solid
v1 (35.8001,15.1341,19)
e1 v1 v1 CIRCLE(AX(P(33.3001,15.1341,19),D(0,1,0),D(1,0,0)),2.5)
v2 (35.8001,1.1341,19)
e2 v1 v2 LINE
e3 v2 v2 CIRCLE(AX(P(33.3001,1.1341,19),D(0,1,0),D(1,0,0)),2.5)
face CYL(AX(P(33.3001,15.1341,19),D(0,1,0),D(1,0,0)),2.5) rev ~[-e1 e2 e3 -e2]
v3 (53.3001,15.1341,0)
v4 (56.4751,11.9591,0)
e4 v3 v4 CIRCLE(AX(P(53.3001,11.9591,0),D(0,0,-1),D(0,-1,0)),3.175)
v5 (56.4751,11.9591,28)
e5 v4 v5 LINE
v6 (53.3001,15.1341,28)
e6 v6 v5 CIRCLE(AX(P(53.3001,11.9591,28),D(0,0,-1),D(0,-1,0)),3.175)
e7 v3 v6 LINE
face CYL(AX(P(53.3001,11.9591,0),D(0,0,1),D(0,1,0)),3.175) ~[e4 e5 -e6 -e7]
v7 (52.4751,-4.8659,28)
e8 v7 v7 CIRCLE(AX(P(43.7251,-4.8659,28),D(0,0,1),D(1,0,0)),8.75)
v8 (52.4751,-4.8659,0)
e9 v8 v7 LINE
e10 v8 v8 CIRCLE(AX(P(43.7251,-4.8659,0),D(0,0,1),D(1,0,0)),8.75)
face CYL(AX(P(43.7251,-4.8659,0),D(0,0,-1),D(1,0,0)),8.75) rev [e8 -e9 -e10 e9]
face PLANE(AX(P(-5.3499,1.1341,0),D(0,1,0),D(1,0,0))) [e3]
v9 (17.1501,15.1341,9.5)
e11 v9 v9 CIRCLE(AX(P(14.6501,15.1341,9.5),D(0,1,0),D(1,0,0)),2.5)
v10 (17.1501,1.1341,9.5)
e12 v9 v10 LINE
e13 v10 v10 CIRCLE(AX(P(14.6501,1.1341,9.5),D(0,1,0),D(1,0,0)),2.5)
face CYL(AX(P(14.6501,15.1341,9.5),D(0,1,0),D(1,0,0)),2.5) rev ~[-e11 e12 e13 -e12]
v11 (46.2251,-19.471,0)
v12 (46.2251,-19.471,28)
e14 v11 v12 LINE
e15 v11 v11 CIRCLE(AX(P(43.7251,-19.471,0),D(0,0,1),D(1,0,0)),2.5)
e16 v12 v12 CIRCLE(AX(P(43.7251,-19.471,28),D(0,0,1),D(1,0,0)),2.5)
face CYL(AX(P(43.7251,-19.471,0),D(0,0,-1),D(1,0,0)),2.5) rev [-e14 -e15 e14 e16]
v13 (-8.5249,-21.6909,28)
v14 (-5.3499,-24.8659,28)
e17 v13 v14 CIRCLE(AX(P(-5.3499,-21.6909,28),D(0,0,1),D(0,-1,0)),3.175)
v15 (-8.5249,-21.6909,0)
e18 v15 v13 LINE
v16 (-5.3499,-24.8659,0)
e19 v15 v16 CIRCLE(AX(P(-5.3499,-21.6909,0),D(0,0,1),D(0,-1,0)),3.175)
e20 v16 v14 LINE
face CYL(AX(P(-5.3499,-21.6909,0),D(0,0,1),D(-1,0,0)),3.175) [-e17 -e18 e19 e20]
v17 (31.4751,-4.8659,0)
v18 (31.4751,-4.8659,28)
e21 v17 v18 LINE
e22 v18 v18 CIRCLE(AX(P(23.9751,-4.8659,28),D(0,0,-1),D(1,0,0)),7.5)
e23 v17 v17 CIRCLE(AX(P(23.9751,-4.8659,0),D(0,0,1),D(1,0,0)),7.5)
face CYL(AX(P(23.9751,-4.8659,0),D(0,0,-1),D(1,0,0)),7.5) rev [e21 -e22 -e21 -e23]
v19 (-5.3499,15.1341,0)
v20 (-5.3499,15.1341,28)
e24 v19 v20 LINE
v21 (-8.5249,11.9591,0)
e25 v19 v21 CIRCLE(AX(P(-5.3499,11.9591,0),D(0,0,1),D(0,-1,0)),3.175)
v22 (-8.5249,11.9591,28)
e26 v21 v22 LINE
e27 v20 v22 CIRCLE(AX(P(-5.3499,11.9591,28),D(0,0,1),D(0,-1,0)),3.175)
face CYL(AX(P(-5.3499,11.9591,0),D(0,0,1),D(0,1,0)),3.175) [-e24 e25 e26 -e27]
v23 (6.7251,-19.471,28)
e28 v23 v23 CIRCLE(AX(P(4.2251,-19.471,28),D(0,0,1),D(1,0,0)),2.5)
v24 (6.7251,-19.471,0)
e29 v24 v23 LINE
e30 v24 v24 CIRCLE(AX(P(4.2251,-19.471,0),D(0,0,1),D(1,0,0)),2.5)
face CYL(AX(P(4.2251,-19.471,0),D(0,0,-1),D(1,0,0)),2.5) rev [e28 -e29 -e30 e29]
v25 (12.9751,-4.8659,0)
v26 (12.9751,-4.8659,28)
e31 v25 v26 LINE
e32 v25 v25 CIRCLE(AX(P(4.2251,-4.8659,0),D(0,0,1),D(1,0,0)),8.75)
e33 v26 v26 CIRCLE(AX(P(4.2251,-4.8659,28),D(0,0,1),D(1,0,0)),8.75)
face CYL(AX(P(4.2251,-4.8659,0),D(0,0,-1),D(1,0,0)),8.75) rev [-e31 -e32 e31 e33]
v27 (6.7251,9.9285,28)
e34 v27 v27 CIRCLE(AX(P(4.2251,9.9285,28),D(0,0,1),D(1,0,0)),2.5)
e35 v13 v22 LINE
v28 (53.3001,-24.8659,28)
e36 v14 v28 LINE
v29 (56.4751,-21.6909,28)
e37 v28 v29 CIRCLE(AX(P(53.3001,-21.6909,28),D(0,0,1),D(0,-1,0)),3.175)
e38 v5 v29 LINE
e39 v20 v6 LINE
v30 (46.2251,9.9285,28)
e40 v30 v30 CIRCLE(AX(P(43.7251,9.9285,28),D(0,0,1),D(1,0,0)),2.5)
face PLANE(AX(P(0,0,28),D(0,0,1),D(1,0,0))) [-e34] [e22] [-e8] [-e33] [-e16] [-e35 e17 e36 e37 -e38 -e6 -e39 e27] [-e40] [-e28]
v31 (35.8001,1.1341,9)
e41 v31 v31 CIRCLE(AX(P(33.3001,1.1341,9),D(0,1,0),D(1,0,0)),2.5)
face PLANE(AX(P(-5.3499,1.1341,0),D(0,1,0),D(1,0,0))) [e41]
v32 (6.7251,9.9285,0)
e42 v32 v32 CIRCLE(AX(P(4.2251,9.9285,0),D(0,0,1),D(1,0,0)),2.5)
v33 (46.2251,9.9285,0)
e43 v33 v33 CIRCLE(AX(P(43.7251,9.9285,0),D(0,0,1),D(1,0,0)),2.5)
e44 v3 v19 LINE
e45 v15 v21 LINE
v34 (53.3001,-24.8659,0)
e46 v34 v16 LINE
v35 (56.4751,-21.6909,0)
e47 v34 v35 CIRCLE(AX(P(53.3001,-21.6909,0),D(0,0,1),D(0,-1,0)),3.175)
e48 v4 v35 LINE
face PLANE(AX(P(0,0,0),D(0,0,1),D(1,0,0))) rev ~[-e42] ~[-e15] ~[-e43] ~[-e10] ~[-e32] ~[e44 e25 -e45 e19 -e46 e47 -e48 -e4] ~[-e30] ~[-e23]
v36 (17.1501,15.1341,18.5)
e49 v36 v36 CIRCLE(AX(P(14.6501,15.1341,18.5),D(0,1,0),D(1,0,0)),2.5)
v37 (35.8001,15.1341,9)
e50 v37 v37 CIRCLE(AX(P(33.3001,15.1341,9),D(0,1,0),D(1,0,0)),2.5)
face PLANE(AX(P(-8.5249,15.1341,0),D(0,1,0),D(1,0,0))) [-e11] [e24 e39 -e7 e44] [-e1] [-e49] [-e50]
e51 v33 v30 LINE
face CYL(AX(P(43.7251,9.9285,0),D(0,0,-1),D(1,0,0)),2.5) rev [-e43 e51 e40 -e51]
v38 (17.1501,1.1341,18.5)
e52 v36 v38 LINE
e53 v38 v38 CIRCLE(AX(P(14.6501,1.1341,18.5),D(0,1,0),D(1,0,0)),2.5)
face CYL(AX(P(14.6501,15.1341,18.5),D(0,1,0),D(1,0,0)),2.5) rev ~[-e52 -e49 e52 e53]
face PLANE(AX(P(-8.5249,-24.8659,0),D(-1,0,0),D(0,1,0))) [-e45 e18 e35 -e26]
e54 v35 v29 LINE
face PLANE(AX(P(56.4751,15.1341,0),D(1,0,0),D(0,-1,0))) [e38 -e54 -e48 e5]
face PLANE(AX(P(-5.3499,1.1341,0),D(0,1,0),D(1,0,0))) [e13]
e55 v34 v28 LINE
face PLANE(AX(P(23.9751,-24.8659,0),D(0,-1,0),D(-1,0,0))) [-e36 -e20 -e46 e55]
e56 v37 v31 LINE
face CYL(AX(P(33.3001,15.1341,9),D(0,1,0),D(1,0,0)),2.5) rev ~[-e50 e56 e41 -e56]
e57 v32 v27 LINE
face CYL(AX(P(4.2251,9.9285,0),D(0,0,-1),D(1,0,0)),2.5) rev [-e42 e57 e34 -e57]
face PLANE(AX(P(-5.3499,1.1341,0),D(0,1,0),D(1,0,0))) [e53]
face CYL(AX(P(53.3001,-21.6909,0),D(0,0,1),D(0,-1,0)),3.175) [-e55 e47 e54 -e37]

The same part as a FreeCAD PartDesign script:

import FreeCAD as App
import Part
import Sketcher

V = App.Vector
Q = App.Units.Quantity


def edges_at(feature, points):
    """Names of the edges that pass closest to the given points."""
    edges = feature.Shape.Edges
    near = lambda p: min(range(len(edges)), key=lambda i: edges[i].distToShape(Part.Vertex(*p))[0])
    return sorted({f"Edge{near(p) + 1}" for p in points})


def add_polygon(sketch, points):
    """Adds a closed chain of lines whose ends are joined by coincident constraints."""
    first, n = sketch.GeometryCount, len(points)
    for a, b in zip(points, points[1:] + points[:1]):
        sketch.addGeometry(Part.LineSegment(App.Vector(*a, 0), App.Vector(*b, 0)), False)
    for i in range(n):
        sketch.addConstraint(Sketcher.Constraint("Coincident", first + i, 2, first + (i + 1) % n, 1))

doc = App.newDocument("Part")
body = doc.addObject("PartDesign::Body", "Body")

sketch1 = doc.addObject("Sketcher::SketchObject", "Sketch")
body.addObject(sketch1)
sketch1.AttachmentSupport = (doc.XY_Plane, [""])
sketch1.MapMode = "FlatFace"
add_polygon(sketch1, [(-8.5249, 15.1341), (-8.5249, -24.8659), (56.4751, -24.8659), (56.4751, 15.1341)])
sketch1.addGeometry(Part.Circle(V(23.9751, -4.8659, 0), V(0, 0, 1), 7.5), False)
sketch1.addGeometry(Part.Circle(V(4.2251, -19.471, 0), V(0, 0, 1), 2.5), False)
sketch1.addGeometry(Part.Circle(V(4.2251, -4.8659, 0), V(0, 0, 1), 8.75), False)
sketch1.addGeometry(Part.Circle(V(4.2251, 9.9285, 0), V(0, 0, 1), 2.5), False)
sketch1.addGeometry(Part.Circle(V(43.7251, -4.8659, 0), V(0, 0, 1), 8.75), False)
sketch1.addGeometry(Part.Circle(V(43.7251, 9.9285, 0), V(0, 0, 1), 2.5), False)
sketch1.addGeometry(Part.Circle(V(43.7251, -19.471, 0), V(0, 0, 1), 2.5), False)
sketch1.addConstraint([
    Sketcher.Constraint("Vertical", 0),
    Sketcher.Constraint("Horizontal", 1),
    Sketcher.Constraint("Vertical", 2),
    Sketcher.Constraint("Horizontal", 3),
    Sketcher.Constraint("Equal", 5, 7),
    Sketcher.Constraint("Equal", 6, 8),
    Sketcher.Constraint("Equal", 7, 9),
    Sketcher.Constraint("Equal", 9, 10),
    Sketcher.Constraint("Horizontal", 4, 3, 6, 3),
    Sketcher.Constraint("Horizontal", 6, 3, 8, 3),
    Sketcher.Constraint("Horizontal", 7, 3, 9, 3),
    Sketcher.Constraint("Horizontal", 5, 3, 10, 3),
    Sketcher.Constraint("Vertical", 5, 3, 6, 3),
    Sketcher.Constraint("Vertical", 6, 3, 7, 3),
    Sketcher.Constraint("Vertical", 8, 3, 9, 3),
    Sketcher.Constraint("Vertical", 9, 3, 10, 3),
    Sketcher.Constraint("Diameter", 4, Q("15 mm")),
    Sketcher.Constraint("Diameter", 5, Q("5 mm")),
    Sketcher.Constraint("Diameter", 6, Q("17.5 mm")),
    Sketcher.Constraint("DistanceX", 1, 1, 1, 2, Q("65 mm")),
    Sketcher.Constraint("DistanceY", 0, 2, 0, 1, Q("40 mm")),
    Sketcher.Constraint("DistanceX", 0, 2, 4, 3, Q("32.5 mm")),
    Sketcher.Constraint("DistanceX", 0, 2, 5, 3, Q("12.75 mm")),
    Sketcher.Constraint("DistanceX", 10, 3, 1, 2, Q("12.75 mm")),
    Sketcher.Constraint("DistanceY", 0, 2, 6, 3, Q("20 mm")),
    Sketcher.Constraint("DistanceX", -1, 1, 4, 3, Q("23.975 mm")),
    Sketcher.Constraint("DistanceY", 4, 3, -1, 1, Q("4.866 mm")),
    Sketcher.Constraint("DistanceY", 5, 3, -1, 1, Q("19.471 mm")),
    Sketcher.Constraint("DistanceY", -1, 1, 7, 3, Q("9.9285 mm")),
])
pad1 = doc.addObject("PartDesign::Pad", "Pad")
body.addObject(pad1)
pad1.Profile = sketch1
pad1.Length = 28
doc.recompute()

fillet = doc.addObject("PartDesign::Fillet", "Fillet")
body.addObject(fillet)
fillet.Base = (pad1, edges_at(pad1, [
    (-8.525, 15.134, 14),
    (56.475, 15.134, 14),
    (56.475, -24.866, 14),
    (-8.525, -24.866, 14),
]))
fillet.Radius = 3.175

sketch2 = doc.addObject("Sketcher::SketchObject", "Sketch001")
body.addObject(sketch2)
sketch2.AttachmentSupport = (doc.XZ_Plane, [""])
sketch2.MapMode = "FlatFace"
sketch2.AttachmentOffset = App.Placement(V(0, 0, -15.1341), App.Rotation())
sketch2.addGeometry([
    Part.Circle(V(14.6501, 9.5, 0), V(0, 0, 1), 2.5),
    Part.Circle(V(33.3001, 9, 0), V(0, 0, 1), 2.5),
    Part.Circle(V(14.6501, 18.5, 0), V(0, 0, 1), 2.5),
    Part.Circle(V(33.3001, 19, 0), V(0, 0, 1), 2.5),
], False)
sketch2.addConstraint([
    Sketcher.Constraint("Equal", 0, 1),
    Sketcher.Constraint("Equal", 1, 2),
    Sketcher.Constraint("Equal", 2, 3),
    Sketcher.Constraint("Vertical", 0, 3, 2, 3),
    Sketcher.Constraint("Vertical", 1, 3, 3, 3),
    Sketcher.Constraint("Diameter", 0, Q("5 mm")),
    Sketcher.Constraint("DistanceY", -1, 1, 1, 3, Q("9 mm")),
    Sketcher.Constraint("DistanceY", -1, 1, 3, 3, Q("19 mm")),
    Sketcher.Constraint("DistanceY", 0, 3, 2, 3, Q("9 mm")),
    Sketcher.Constraint("DistanceY", -1, 1, 0, 3, Q("9.5 mm")),
    Sketcher.Constraint("DistanceX", -1, 1, 1, 3, Q("33.3 mm")),
    Sketcher.Constraint("DistanceX", -1, 1, 0, 3, Q("14.65 mm")),
])
pocket1 = doc.addObject("PartDesign::Pocket", "Pocket")
body.addObject(pocket1)
pocket1.Profile = sketch2
pocket1.Length = 14
pocket1.Reversed = True

doc.recompute()
